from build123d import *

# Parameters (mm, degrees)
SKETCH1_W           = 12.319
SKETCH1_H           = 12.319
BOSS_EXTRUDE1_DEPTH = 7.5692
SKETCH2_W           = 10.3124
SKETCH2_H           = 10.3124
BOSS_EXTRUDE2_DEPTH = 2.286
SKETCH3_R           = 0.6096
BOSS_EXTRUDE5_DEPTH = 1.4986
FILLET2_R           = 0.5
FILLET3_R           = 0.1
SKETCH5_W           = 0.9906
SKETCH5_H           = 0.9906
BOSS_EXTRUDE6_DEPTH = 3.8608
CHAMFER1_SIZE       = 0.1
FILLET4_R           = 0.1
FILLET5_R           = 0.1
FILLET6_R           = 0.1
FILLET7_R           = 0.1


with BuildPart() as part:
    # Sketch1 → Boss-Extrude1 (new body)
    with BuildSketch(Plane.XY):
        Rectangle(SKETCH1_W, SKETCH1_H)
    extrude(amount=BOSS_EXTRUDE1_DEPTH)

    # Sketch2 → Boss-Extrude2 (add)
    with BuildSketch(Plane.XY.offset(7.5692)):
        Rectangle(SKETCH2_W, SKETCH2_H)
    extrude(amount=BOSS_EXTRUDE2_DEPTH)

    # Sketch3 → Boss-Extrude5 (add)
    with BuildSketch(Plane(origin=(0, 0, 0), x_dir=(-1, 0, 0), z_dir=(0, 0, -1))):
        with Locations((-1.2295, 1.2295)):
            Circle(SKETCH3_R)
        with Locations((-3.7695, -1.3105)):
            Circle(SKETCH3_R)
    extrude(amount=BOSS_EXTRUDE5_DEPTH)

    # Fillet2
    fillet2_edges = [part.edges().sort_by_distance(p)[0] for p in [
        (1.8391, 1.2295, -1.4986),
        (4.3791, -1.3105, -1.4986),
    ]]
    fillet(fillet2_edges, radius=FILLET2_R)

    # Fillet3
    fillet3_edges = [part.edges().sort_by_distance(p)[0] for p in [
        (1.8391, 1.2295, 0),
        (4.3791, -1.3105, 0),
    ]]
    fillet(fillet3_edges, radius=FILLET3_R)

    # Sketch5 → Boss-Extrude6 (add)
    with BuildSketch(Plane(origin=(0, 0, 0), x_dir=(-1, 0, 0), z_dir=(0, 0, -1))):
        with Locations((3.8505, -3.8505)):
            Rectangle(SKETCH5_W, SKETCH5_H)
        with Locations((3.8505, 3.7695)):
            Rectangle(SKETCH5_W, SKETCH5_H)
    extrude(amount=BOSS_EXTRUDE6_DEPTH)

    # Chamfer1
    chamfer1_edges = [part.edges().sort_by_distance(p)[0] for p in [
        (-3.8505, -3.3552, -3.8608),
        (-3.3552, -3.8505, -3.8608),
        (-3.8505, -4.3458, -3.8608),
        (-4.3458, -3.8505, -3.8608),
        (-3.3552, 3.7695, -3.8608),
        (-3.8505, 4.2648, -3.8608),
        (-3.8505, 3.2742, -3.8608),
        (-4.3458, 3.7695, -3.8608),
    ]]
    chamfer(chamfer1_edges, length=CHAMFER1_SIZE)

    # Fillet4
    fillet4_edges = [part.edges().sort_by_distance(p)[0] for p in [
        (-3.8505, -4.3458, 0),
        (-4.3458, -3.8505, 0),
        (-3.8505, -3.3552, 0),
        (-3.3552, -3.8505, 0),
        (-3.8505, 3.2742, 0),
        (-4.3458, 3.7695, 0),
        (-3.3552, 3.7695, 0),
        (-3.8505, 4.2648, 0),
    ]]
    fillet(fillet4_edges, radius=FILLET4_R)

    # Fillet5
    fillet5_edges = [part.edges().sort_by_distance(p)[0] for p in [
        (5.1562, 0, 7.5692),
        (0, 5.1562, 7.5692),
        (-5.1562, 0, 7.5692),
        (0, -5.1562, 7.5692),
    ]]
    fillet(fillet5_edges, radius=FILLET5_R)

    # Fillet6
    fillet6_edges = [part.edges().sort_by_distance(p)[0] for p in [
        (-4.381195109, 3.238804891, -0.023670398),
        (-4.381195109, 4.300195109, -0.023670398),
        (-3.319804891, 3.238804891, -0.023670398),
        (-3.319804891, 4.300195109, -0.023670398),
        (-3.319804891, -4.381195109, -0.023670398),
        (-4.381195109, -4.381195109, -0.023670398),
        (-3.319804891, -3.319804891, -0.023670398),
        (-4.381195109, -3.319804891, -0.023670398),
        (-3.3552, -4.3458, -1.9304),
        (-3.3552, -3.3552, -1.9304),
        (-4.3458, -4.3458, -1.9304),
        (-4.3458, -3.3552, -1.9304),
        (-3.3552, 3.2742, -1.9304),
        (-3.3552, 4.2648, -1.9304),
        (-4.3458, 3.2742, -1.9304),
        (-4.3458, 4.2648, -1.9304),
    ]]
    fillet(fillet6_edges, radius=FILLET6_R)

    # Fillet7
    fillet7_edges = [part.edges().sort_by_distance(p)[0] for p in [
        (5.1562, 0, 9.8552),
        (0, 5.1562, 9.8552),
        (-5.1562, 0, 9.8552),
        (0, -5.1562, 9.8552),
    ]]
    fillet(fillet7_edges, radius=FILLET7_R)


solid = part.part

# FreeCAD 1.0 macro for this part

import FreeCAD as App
import Part
import Sketcher

V = App.Vector
Q = App.Units.Quantity


def edges_at(feature, points):
    """Names of the edges that pass closest to the given points."""
    edges = feature.Shape.Edges
    near = lambda p: min(range(len(edges)), key=lambda i: edges[i].distToShape(Part.Vertex(*p))[0])
    return sorted({f"Edge{near(p) + 1}" for p in points})


def add_polygon(sketch, points):
    """Adds a closed chain of lines whose ends are joined by coincident constraints."""
    first, n = sketch.GeometryCount, len(points)
    for a, b in zip(points, points[1:] + points[:1]):
        sketch.addGeometry(Part.LineSegment(App.Vector(*a, 0), App.Vector(*b, 0)), False)
    for i in range(n):
        sketch.addConstraint(Sketcher.Constraint("Coincident", first + i, 2, first + (i + 1) % n, 1))

doc = App.newDocument("Part")
params = doc.addObject("Spreadsheet::Sheet", "Params")
for row, (alias, value) in enumerate([
    ("sketch1_width", "0.485 in"),
    ("pad1_length", "0.298 in"),
    ("sketch2_width", "0.406 in"),
    ("pad2_length", "0.09 in"),
    ("sketch3_diameter", "0.048 in"),
    ("pad3_length", "0.059 in"),
    ("fillet_radius", "0.5 mm"),
    ("fillet2_radius", "0.1 mm"),
    ("sketch4_width", "0.039 in"),
    ("pad4_length", "0.152 in"),
    ("chamfer_size", "0.1 mm"),
    ("fillet3_radius", "0.1 mm"),
    ("fillet4_radius", "0.1 mm"),
    ("fillet5_radius", "0.1 mm"),
    ("fillet6_radius", "0.1 mm"),
], start=1):
    params.set(f"A{row}", alias)
    params.set(f"B{row}", "=" + value)
    params.setAlias(f"B{row}", alias)

body = doc.addObject("PartDesign::Body", "Body")

sketch1 = doc.addObject("Sketcher::SketchObject", "Sketch")
body.addObject(sketch1)
sketch1.AttachmentSupport = (doc.XY_Plane, [""])
sketch1.MapMode = "FlatFace"
add_polygon(sketch1, [(-6.1595, 6.1595), (-6.1595, -6.1595), (6.1595, -6.1595), (6.1595, 6.1595)])
sketch1.addConstraint(Sketcher.Constraint("Vertical", 0))
sketch1.addConstraint(Sketcher.Constraint("Horizontal", 1))
sketch1.addConstraint(Sketcher.Constraint("Vertical", 2))
sketch1.addConstraint(Sketcher.Constraint("Horizontal", 3))
sketch1.addConstraint(Sketcher.Constraint("Symmetric", 0, 2, 2, 2, -1, 1))
sketch1.addConstraint(Sketcher.Constraint("Equal", 3, 0))
sketch1.addConstraint(Sketcher.Constraint("DistanceX", 1, 1, 1, 2, Q("0.485 in")))
sketch1.setExpression("Constraints[10]", "Params.sketch1_width")
pad1 = doc.addObject("PartDesign::Pad", "Pad")
body.addObject(pad1)
pad1.Profile = sketch1
pad1.setExpression("Length", "Params.pad1_length")

sketch2 = doc.addObject("Sketcher::SketchObject", "Sketch001")
body.addObject(sketch2)
sketch2.AttachmentSupport = (doc.XY_Plane, [""])
sketch2.MapMode = "FlatFace"
sketch2.AttachmentOffset = App.Placement(V(0, 0, 0.298 * 25.4), App.Rotation())
add_polygon(sketch2, [(-5.1562, 5.1562), (-5.1562, -5.1562), (5.1562, -5.1562), (5.1562, 5.1562)])
sketch2.addConstraint(Sketcher.Constraint("Vertical", 0))
sketch2.addConstraint(Sketcher.Constraint("Horizontal", 1))
sketch2.addConstraint(Sketcher.Constraint("Vertical", 2))
sketch2.addConstraint(Sketcher.Constraint("Horizontal", 3))
sketch2.addConstraint(Sketcher.Constraint("Symmetric", 0, 2, 2, 2, -1, 1))
sketch2.addConstraint(Sketcher.Constraint("Equal", 3, 0))
sketch2.addConstraint(Sketcher.Constraint("DistanceX", 1, 1, 1, 2, Q("0.406 in")))
sketch2.setExpression("Constraints[10]", "Params.sketch2_width")
pad2 = doc.addObject("PartDesign::Pad", "Pad001")
body.addObject(pad2)
pad2.Profile = sketch2
pad2.setExpression("Length", "Params.pad2_length")

sketch3 = doc.addObject("Sketcher::SketchObject", "Sketch002")
body.addObject(sketch3)
sketch3.AttachmentSupport = (doc.XY_Plane, [""])
sketch3.MapMode = "FlatFace"
sketch3.addGeometry(Part.Circle(V(1.2295, 1.2295, 0), V(0, 0, 1), 0.6096), False)
sketch3.addGeometry(Part.Circle(V(3.7695, -1.3105, 0), V(0, 0, 1), 0.6096), False)
sketch3.addConstraint(Sketcher.Constraint("Equal", 0, 1))
sketch3.addConstraint(Sketcher.Constraint("Diameter", 0, Q("0.048 in")))
sketch3.addConstraint(Sketcher.Constraint("DistanceX", 0, 3, 1, 3, Q("0.1 in")))
sketch3.addConstraint(Sketcher.Constraint("DistanceY", 1, 3, 0, 3, Q("0.1 in")))
sketch3.addConstraint(Sketcher.Constraint("DistanceX", -1, 1, 0, 3, 1.2295))
sketch3.addConstraint(Sketcher.Constraint("DistanceY", -1, 1, 0, 3, 1.2295))
sketch3.setExpression("Constraints[1]", "Params.sketch3_diameter")
pad3 = doc.addObject("PartDesign::Pad", "Pad002")
body.addObject(pad3)
pad3.Profile = sketch3
pad3.setExpression("Length", "Params.pad3_length")
pad3.Reversed = True
doc.recompute()

fillet = doc.addObject("PartDesign::Fillet", "Fillet")
body.addObject(fillet)
fillet.Base = (pad3, edges_at(pad3, [(1.839, 1.23, -1.499), (4.379, -1.31, -1.499)]))
fillet.setExpression("Radius", "Params.fillet_radius")
doc.recompute()

fillet2 = doc.addObject("PartDesign::Fillet", "Fillet001")
body.addObject(fillet2)
fillet2.Base = (fillet, edges_at(fillet, [(1.839, 1.23, 0), (4.379, -1.31, 0)]))
fillet2.setExpression("Radius", "Params.fillet2_radius")

sketch4 = doc.addObject("Sketcher::SketchObject", "Sketch003")
body.addObject(sketch4)
sketch4.AttachmentSupport = (doc.XY_Plane, [""])
sketch4.MapMode = "FlatFace"
add_polygon(sketch4, [(-3.3552, -3.3552), (-3.3552, -4.3458), (-4.3458, -4.3458), (-4.3458, -3.3552)])
add_polygon(sketch4, [(-3.3552, 4.2648), (-3.3552, 3.2742), (-4.3458, 3.2742), (-4.3458, 4.2648)])
sketch4.addConstraint(Sketcher.Constraint("Vertical", 0))
sketch4.addConstraint(Sketcher.Constraint("Horizontal", 1))
sketch4.addConstraint(Sketcher.Constraint("Vertical", 2))
sketch4.addConstraint(Sketcher.Constraint("Horizontal", 3))
sketch4.addConstraint(Sketcher.Constraint("Vertical", 4))
sketch4.addConstraint(Sketcher.Constraint("Horizontal", 5))
sketch4.addConstraint(Sketcher.Constraint("Vertical", 6))
sketch4.addConstraint(Sketcher.Constraint("Horizontal", 7))
sketch4.addConstraint(Sketcher.Constraint("Vertical", 3, 2, 4, 2))
sketch4.addConstraint(Sketcher.Constraint("Vertical", 2, 2, 5, 2))
sketch4.addConstraint(Sketcher.Constraint("Equal", 7, 0))
sketch4.addConstraint(Sketcher.Constraint("Equal", 2, 4))
sketch4.addConstraint(Sketcher.Constraint("DistanceY", 0, 2, 4, 2, Q("0.3 in")))
sketch4.addConstraint(Sketcher.Constraint("DistanceX", 1, 2, 1, 1, Q("0.039 in")))
sketch4.addConstraint(Sketcher.Constraint("DistanceX", 0, 2, -1, 1, 3.3552))
sketch4.addConstraint(Sketcher.Constraint("DistanceY", 0, 2, -1, 1, 4.3458))
sketch4.setExpression("Constraints[21]", "Params.sketch4_width")
pad4 = doc.addObject("PartDesign::Pad", "Pad003")
body.addObject(pad4)
pad4.Profile = sketch4
pad4.setExpression("Length", "Params.pad4_length")
pad4.Reversed = True
doc.recompute()

chamfer = doc.addObject("PartDesign::Chamfer", "Chamfer")
body.addObject(chamfer)
chamfer.Base = (pad4, edges_at(pad4, [
    (-3.85, -3.355, -3.861),
    (-3.355, -3.85, -3.861),
    (-3.85, -4.346, -3.861),
    (-4.346, -3.85, -3.861),
    (-3.355, 3.769, -3.861),
    (-3.85, 4.265, -3.861),
    (-3.85, 3.274, -3.861),
    (-4.346, 3.769, -3.861),
]))
chamfer.setExpression("Size", "Params.chamfer_size")
doc.recompute()

fillet3 = doc.addObject("PartDesign::Fillet", "Fillet002")
body.addObject(fillet3)
fillet3.Base = (chamfer, edges_at(chamfer, [
    (-3.85, -4.346, 0),
    (-4.346, -3.85, 0),
    (-3.85, -3.355, 0),
    (-3.355, -3.85, 0),
    (-3.85, 3.274, 0),
    (-4.346, 3.769, 0),
    (-3.355, 3.769, 0),
    (-3.85, 4.265, 0),
]))
fillet3.setExpression("Radius", "Params.fillet3_radius")
doc.recompute()

fillet4 = doc.addObject("PartDesign::Fillet", "Fillet003")
body.addObject(fillet4)
fillet4.Base = (fillet3, edges_at(fillet3, [
    (5.156, 0, 7.569),
    (0, 5.156, 7.569),
    (-5.156, 0, 7.569),
    (0, -5.156, 7.569),
]))
fillet4.setExpression("Radius", "Params.fillet4_radius")
doc.recompute()

fillet5 = doc.addObject("PartDesign::Fillet", "Fillet004")
body.addObject(fillet5)
fillet5.Base = (fillet4, edges_at(fillet4, [
    (-4.381, 3.239, -0.024),
    (-4.381, 4.3, -0.024),
    (-3.32, 3.239, -0.024),
    (-3.32, 4.3, -0.024),
    (-3.32, -4.381, -0.024),
    (-4.381, -4.381, -0.024),
    (-3.32, -3.32, -0.024),
    (-4.381, -3.32, -0.024),
    (-3.355, -4.346, -1.93),
    (-3.355, -3.355, -1.93),
    (-4.346, -4.346, -1.93),
    (-4.346, -3.355, -1.93),
    (-3.355, 3.274, -1.93),
    (-3.355, 4.265, -1.93),
    (-4.346, 3.274, -1.93),
    (-4.346, 4.265, -1.93),
]))
fillet5.setExpression("Radius", "Params.fillet5_radius")
doc.recompute()

fillet6 = doc.addObject("PartDesign::Fillet", "Fillet005")
body.addObject(fillet6)
fillet6.Base = (fillet5, edges_at(fillet5, [
    (5.156, 0, 9.855),
    (0, 5.156, 9.855),
    (-5.156, 0, 9.855),
    (0, -5.156, 9.855),
]))
fillet6.setExpression("Radius", "Params.fillet6_radius")

doc.recompute()
